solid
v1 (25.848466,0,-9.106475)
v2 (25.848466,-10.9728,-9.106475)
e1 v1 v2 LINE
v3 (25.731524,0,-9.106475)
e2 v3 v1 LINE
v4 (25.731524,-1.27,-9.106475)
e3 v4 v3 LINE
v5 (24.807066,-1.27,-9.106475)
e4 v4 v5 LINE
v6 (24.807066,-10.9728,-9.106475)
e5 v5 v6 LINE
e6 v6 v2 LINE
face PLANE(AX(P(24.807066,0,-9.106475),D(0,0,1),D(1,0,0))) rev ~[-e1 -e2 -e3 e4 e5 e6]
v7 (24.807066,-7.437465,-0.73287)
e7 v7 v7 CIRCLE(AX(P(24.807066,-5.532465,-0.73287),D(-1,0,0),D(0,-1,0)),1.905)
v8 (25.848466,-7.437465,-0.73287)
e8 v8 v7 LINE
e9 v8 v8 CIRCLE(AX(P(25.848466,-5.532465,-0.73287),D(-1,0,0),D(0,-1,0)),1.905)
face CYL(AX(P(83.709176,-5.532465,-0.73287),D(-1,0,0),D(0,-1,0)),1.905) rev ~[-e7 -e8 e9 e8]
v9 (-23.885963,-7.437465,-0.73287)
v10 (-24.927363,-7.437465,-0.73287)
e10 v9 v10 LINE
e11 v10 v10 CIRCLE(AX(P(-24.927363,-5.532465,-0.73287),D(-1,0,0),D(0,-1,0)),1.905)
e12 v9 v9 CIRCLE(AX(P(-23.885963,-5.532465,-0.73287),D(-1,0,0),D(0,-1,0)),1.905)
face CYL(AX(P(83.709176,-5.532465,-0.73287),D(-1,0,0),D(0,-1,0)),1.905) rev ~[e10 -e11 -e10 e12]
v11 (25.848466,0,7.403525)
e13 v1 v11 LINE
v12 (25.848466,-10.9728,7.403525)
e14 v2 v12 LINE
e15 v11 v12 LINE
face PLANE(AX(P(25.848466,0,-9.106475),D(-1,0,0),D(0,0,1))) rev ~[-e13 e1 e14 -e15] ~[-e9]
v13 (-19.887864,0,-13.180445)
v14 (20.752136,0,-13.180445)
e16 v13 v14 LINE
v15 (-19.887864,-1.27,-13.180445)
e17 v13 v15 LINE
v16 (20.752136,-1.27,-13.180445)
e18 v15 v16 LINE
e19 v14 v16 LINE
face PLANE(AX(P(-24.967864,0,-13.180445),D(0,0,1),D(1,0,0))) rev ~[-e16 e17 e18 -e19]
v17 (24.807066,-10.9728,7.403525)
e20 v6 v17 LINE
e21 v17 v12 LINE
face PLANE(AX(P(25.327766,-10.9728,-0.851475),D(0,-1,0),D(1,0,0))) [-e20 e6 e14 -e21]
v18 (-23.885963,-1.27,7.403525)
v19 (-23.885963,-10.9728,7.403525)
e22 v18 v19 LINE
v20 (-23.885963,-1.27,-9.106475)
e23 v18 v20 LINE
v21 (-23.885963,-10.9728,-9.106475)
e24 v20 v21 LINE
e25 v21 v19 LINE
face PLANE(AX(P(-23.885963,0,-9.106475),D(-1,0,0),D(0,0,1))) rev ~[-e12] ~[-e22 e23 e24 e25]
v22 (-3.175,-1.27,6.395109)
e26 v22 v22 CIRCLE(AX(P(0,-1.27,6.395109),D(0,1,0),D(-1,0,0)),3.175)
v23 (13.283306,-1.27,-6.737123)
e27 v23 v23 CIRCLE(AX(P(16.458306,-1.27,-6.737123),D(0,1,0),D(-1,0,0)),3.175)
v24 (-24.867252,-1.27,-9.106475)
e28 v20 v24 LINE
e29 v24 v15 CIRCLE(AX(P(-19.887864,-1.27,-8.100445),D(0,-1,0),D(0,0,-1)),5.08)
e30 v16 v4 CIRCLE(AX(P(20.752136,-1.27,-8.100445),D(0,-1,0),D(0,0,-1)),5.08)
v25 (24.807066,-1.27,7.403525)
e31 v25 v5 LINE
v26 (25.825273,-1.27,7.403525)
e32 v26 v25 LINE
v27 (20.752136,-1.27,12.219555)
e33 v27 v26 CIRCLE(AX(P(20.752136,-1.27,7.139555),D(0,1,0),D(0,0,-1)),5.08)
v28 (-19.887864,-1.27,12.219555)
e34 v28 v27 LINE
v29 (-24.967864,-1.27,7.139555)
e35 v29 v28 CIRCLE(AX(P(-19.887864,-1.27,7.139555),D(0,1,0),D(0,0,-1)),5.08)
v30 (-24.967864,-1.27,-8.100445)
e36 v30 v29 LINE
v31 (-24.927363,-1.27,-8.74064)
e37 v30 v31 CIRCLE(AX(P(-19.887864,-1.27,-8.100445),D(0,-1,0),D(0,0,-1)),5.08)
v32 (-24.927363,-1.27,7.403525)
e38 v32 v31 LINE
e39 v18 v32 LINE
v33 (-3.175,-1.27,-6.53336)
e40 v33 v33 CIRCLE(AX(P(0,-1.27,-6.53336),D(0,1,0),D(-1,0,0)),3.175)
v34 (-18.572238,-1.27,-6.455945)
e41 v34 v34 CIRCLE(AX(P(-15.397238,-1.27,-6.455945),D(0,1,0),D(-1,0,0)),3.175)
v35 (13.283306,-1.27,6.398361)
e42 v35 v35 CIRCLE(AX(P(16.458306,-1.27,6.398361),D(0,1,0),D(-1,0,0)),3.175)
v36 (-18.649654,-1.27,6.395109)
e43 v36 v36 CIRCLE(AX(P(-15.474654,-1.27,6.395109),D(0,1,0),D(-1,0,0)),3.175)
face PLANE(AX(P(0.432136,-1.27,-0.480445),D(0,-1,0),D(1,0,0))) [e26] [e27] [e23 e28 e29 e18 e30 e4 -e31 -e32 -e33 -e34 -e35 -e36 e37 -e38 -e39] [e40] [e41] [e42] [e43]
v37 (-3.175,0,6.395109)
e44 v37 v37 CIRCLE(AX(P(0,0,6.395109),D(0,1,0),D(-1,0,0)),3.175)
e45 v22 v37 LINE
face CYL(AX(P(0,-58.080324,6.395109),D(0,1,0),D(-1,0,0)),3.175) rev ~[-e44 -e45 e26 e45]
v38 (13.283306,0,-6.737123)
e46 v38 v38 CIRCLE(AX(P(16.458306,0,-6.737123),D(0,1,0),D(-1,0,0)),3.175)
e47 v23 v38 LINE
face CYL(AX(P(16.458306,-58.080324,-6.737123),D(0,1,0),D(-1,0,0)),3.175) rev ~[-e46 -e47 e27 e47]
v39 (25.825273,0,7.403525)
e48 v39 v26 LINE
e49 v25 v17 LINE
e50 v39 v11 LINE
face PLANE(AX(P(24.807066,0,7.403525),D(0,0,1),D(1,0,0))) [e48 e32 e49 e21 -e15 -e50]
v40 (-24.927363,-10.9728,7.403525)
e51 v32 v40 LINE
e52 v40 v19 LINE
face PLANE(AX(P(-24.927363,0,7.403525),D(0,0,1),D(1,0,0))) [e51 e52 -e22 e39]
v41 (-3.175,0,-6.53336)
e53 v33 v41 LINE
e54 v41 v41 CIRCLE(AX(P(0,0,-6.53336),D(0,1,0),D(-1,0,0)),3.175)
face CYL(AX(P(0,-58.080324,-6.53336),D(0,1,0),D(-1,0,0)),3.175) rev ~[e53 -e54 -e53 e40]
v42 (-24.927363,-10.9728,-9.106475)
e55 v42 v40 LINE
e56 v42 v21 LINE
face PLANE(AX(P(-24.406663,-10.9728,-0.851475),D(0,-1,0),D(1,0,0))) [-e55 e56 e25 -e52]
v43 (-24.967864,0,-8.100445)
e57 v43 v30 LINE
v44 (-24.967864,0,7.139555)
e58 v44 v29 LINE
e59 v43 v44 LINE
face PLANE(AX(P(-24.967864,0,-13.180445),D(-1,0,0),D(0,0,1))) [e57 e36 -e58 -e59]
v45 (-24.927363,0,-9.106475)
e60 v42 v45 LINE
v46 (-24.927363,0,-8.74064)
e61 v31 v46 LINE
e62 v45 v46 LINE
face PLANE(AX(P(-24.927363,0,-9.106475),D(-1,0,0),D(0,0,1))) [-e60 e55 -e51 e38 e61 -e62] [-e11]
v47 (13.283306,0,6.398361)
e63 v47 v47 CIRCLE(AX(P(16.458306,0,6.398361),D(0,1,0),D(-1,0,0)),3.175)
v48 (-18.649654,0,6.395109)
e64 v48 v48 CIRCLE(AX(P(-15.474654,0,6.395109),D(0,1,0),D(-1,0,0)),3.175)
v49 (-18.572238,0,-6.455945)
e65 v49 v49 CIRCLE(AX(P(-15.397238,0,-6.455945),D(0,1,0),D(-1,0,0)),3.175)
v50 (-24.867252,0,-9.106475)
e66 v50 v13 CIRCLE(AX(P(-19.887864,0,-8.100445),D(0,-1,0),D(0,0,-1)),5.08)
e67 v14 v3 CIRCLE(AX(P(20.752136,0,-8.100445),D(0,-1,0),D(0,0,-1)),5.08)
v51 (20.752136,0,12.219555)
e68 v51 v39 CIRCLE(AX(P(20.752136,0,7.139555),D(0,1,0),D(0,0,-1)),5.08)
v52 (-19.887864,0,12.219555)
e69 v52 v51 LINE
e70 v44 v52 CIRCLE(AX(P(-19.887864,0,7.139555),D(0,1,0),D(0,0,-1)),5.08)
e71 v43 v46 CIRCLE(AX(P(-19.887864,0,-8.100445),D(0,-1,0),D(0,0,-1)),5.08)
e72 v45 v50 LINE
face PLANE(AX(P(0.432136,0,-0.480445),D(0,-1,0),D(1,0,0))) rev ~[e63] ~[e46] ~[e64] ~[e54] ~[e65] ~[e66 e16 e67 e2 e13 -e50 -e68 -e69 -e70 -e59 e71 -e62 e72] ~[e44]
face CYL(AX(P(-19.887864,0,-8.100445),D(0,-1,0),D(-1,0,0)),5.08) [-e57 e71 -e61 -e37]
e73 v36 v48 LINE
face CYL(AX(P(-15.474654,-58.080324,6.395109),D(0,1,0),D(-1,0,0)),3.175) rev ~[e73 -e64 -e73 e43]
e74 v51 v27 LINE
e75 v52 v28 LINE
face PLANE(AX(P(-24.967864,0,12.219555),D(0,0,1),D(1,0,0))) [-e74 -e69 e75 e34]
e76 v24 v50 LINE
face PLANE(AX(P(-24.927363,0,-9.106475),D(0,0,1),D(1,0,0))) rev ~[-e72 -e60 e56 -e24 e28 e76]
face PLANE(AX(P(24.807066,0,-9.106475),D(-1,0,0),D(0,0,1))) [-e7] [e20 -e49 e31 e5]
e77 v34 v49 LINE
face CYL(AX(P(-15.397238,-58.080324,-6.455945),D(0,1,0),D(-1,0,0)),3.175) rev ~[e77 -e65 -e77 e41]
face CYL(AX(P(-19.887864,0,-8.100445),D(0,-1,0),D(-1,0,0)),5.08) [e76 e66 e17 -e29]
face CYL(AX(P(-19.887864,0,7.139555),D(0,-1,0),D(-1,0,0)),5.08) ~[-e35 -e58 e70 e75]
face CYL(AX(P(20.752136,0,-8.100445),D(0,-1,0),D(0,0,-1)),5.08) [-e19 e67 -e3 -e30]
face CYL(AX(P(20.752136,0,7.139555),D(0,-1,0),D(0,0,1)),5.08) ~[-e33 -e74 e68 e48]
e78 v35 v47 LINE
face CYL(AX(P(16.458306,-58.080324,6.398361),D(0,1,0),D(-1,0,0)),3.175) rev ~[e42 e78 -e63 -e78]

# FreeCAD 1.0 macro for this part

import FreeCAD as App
import Part
import Sketcher

V = App.Vector
Q = App.Units.Quantity


def edges_at(feature, points):
    """Names of the edges that pass closest to the given points."""
    edges = feature.Shape.Edges
    near = lambda p: min(range(len(edges)), key=lambda i: edges[i].distToShape(Part.Vertex(*p))[0])
    return sorted({f"Edge{near(p) + 1}" for p in points})


def add_polygon(sketch, points):
    """Adds a closed chain of lines whose ends are joined by coincident constraints."""
    first, n = sketch.GeometryCount, len(points)
    for a, b in zip(points, points[1:] + points[:1]):
        sketch.addGeometry(Part.LineSegment(App.Vector(*a, 0), App.Vector(*b, 0)), False)
    for i in range(n):
        sketch.addConstraint(Sketcher.Constraint("Coincident", first + i, 2, first + (i + 1) % n, 1))

doc = App.newDocument("Part")
params = doc.addObject("Spreadsheet::Sheet", "Params")
for row, (alias, value) in enumerate([
    ("sketch1_width", "2 in"),
    ("sketch1_height", "1 in"),
    ("pad1_length", "0.05 in"),
    ("sketch2_diameter", "0.25 in"),
    ("hole_diameter", "0.25 in"),
    ("fillet_radius", "0.2 in"),
    ("sketch3_height", "0.65 in"),
    ("sketch3_width", "0.041 in"),
    ("pad2_length", "0.432 in"),
    ("sketch4_height", "0.65 in"),
    ("sketch4_width", "0.041 in"),
    ("pad3_length", "0.01 in"),
    ("sketch5_diameter", "0.15 in"),
    ("hole2_diameter", "0.15 in"),
], start=1):
    params.set(f"A{row}", alias)
    params.set(f"B{row}", "=" + value)
    params.setAlias(f"B{row}", alias)

body = doc.addObject("PartDesign::Body", "Body")

sketch1 = body.newObject("Sketcher::SketchObject", "Sketch")
sketch1.AttachmentSupport = (doc.getObject("XZ_Plane"), [""])
sketch1.MapMode = "FlatFace"
add_polygon(sketch1, [(-24.967864, 12.219555), (-24.967864, -13.180445), (25.832136, -13.180445), (25.832136, 12.219555)])
sketch1.addConstraint([
    Sketcher.Constraint("Vertical", 0),
    Sketcher.Constraint("Horizontal", 1),
    Sketcher.Constraint("Vertical", 2),
    Sketcher.Constraint("Horizontal", 3),
    Sketcher.Constraint("DistanceX", 1, 1, 1, 2, Q("2 in")),
    Sketcher.Constraint("DistanceY", 0, 2, 0, 1, Q("1 in")),
    Sketcher.Constraint("DistanceX", 0, 2, -1, 1, 24.967864),
    Sketcher.Constraint("DistanceY", 0, 2, -1, 1, 13.180445),
])
sketch1.setExpression("Constraints[8]", "Params.sketch1_width")
sketch1.setExpression("Constraints[9]", "Params.sketch1_height")
pad1 = body.newObject("PartDesign::Pad", "Pad")
pad1.Profile = sketch1
pad1.setExpression("Length", "Params.pad1_length")

sketch2 = body.newObject("Sketcher::SketchObject", "Sketch001")
sketch2.AttachmentSupport = (doc.getObject("XZ_Plane"), [""])
sketch2.MapMode = "FlatFace"
sketch2.AttachmentOffset = App.Placement(V(0, 0, 0.05 * 25.4), App.Rotation())
sketch2.addGeometry([
    Part.Circle(V(0, -6.53336, 0), V(0, 0, 1), 3.175),
    Part.Circle(V(16.458306, 6.398361, 0), V(0, 0, 1), 3.175),
    Part.Circle(V(0, 6.395109, 0), V(0, 0, 1), 3.175),
    Part.Circle(V(16.458306, -6.737123, 0), V(0, 0, 1), 3.175),
    Part.Circle(V(-15.397238, -6.455945, 0), V(0, 0, 1), 3.175),
    Part.Circle(V(-15.474654, 6.395109, 0), V(0, 0, 1), 3.175),
], False)
sketch2.addConstraint([
    Sketcher.Constraint("Equal", 0, 1),
    Sketcher.Constraint("Equal", 1, 2),
    Sketcher.Constraint("Equal", 2, 3),
    Sketcher.Constraint("Equal", 3, 4),
    Sketcher.Constraint("Equal", 4, 5),
    Sketcher.Constraint("PointOnObject", 0, 3, -2),
    Sketcher.Constraint("PointOnObject", 2, 3, -2),
    Sketcher.Constraint("Horizontal", 2, 3, 5, 3),
    Sketcher.Constraint("Vertical", 1, 3, 3, 3),
    Sketcher.Constraint("Diameter", 0, Q("0.25 in")),
    Sketcher.Constraint("DistanceY", 0, 3, -1, 1, 6.53336),
    Sketcher.Constraint("DistanceY", -1, 1, 1, 3, 6.398361),
    Sketcher.Constraint("DistanceY", -1, 1, 2, 3, 6.395109),
    Sketcher.Constraint("DistanceY", 3, 3, 4, 3, 0.281178),
    Sketcher.Constraint("DistanceX", 5, 3, 1, 3, 31.93296),
    Sketcher.Constraint("DistanceX", -1, 1, 1, 3, 16.458306),
    Sketcher.Constraint("DistanceY", 3, 3, -1, 1, 6.737123),
    Sketcher.Constraint("DistanceX", 4, 3, -1, 1, 15.397238),
])
sketch2.setExpression("Constraints[9]", "Params.sketch2_diameter")
doc.recompute()
hole = body.newObject("PartDesign::Hole", "Hole")
hole.Profile = sketch2
hole.ThreadType = "None"
hole.setExpression("Diameter", "Params.hole_diameter")
hole.DepthType = "ThroughAll"
doc.recompute()

fillet = body.newObject("PartDesign::Fillet", "Fillet")
fillet.Base = (hole, edges_at(hole, [
    (25.832, -0.635, 12.22),
    (25.832, -0.635, -13.18),
    (-24.968, -0.635, 12.22),
    (-24.968, -0.635, -13.18),
]))
fillet.setExpression("Radius", "Params.fillet_radius")

sketch3 = body.newObject("Sketcher::SketchObject", "Sketch002")
sketch3.AttachmentSupport = (doc.getObject("XZ_Plane"), [""])
sketch3.MapMode = "FlatFace"
add_polygon(sketch3, [(24.807066, 7.403525), (24.807066, -9.106475), (25.848466, -9.106475), (25.848466, 7.403525)])
add_polygon(sketch3, [(-24.927363, 7.403525), (-24.927363, -9.106475), (-23.885963, -9.106475), (-23.885963, 7.403525)])
sketch3.addConstraint([
    Sketcher.Constraint("Vertical", 0),
    Sketcher.Constraint("Horizontal", 1),
    Sketcher.Constraint("Vertical", 2),
    Sketcher.Constraint("Horizontal", 3),
    Sketcher.Constraint("Vertical", 4),
    Sketcher.Constraint("Horizontal", 5),
    Sketcher.Constraint("Vertical", 6),
    Sketcher.Constraint("Horizontal", 7),
    Sketcher.Constraint("Horizontal", 1, 2, 4, 2),
    Sketcher.Constraint("Horizontal", 3, 2, 6, 2),
    Sketcher.Constraint("Equal", 3, 5),
    Sketcher.Constraint("DistanceY", 0, 2, 0, 1, Q("0.65 in")),
    Sketcher.Constraint("DistanceX", 1, 1, 1, 2, Q("0.041 in")),
    Sketcher.Constraint("DistanceX", 4, 2, 0, 2, 49.734429),
    Sketcher.Constraint("DistanceX", -1, 1, 0, 2, 24.807066),
    Sketcher.Constraint("DistanceY", 0, 2, -1, 1, 9.106475),
])
sketch3.setExpression("Constraints[19]", "Params.sketch3_height")
sketch3.setExpression("Constraints[20]", "Params.sketch3_width")
pad2 = body.newObject("PartDesign::Pad", "Pad001")
pad2.Profile = sketch3
pad2.setExpression("Length", "Params.pad2_length")

sketch4 = body.newObject("Sketcher::SketchObject", "Sketch003")
sketch4.AttachmentSupport = (doc.getObject("XZ_Plane"), [""])
sketch4.MapMode = "FlatFace"
add_polygon(sketch4, [(24.807066, 7.403525), (24.807066, -9.106475), (25.848466, -9.106475), (25.848466, 7.403525)])
add_polygon(sketch4, [(-24.927363, 7.403525), (-24.927363, -9.106475), (-23.885963, -9.106475), (-23.885963, 7.403525)])
sketch4.addConstraint([
    Sketcher.Constraint("Vertical", 0),
    Sketcher.Constraint("Horizontal", 1),
    Sketcher.Constraint("Vertical", 2),
    Sketcher.Constraint("Horizontal", 3),
    Sketcher.Constraint("Vertical", 4),
    Sketcher.Constraint("Horizontal", 5),
    Sketcher.Constraint("Vertical", 6),
    Sketcher.Constraint("Horizontal", 7),
    Sketcher.Constraint("Horizontal", 1, 2, 4, 2),
    Sketcher.Constraint("Horizontal", 3, 2, 6, 2),
    Sketcher.Constraint("Equal", 3, 5),
    Sketcher.Constraint("DistanceY", 0, 2, 0, 1, Q("0.65 in")),
    Sketcher.Constraint("DistanceX", 1, 1, 1, 2, Q("0.041 in")),
    Sketcher.Constraint("DistanceX", 4, 2, 0, 2, 49.734429),
    Sketcher.Constraint("DistanceX", -1, 1, 0, 2, 24.807066),
    Sketcher.Constraint("DistanceY", 0, 2, -1, 1, 9.106475),
])
sketch4.setExpression("Constraints[19]", "Params.sketch4_height")
sketch4.setExpression("Constraints[20]", "Params.sketch4_width")
pad3 = body.newObject("PartDesign::Pad", "Pad002")
pad3.Profile = sketch4
pad3.setExpression("Length", "Params.pad3_length")

sketch5 = body.newObject("Sketcher::SketchObject", "Sketch004")
sketch5.AttachmentSupport = (doc.getObject("YZ_Plane"), [""])
sketch5.MapMode = "FlatFace"
sketch5.AttachmentOffset = App.Placement(V(0, 0, 25.848466), App.Rotation())
sketch5.addGeometry(Part.Circle(V(-5.532465, -0.73287, 0), V(0, 0, 1), 1.905), False)
sketch5.addConstraint([
    Sketcher.Constraint("Diameter", 0, Q("0.15 in")),
    Sketcher.Constraint("DistanceY", 0, 3, -1, 1, 0.73287),
    Sketcher.Constraint("DistanceX", 0, 3, -1, 1, 5.532465),
])
sketch5.setExpression("Constraints[0]", "Params.sketch5_diameter")
doc.recompute()
hole2 = body.newObject("PartDesign::Hole", "Hole001")
hole2.Profile = sketch5
hole2.ThreadType = "None"
hole2.setExpression("Diameter", "Params.hole2_diameter")
hole2.DepthType = "ThroughAll"

doc.recompute()
